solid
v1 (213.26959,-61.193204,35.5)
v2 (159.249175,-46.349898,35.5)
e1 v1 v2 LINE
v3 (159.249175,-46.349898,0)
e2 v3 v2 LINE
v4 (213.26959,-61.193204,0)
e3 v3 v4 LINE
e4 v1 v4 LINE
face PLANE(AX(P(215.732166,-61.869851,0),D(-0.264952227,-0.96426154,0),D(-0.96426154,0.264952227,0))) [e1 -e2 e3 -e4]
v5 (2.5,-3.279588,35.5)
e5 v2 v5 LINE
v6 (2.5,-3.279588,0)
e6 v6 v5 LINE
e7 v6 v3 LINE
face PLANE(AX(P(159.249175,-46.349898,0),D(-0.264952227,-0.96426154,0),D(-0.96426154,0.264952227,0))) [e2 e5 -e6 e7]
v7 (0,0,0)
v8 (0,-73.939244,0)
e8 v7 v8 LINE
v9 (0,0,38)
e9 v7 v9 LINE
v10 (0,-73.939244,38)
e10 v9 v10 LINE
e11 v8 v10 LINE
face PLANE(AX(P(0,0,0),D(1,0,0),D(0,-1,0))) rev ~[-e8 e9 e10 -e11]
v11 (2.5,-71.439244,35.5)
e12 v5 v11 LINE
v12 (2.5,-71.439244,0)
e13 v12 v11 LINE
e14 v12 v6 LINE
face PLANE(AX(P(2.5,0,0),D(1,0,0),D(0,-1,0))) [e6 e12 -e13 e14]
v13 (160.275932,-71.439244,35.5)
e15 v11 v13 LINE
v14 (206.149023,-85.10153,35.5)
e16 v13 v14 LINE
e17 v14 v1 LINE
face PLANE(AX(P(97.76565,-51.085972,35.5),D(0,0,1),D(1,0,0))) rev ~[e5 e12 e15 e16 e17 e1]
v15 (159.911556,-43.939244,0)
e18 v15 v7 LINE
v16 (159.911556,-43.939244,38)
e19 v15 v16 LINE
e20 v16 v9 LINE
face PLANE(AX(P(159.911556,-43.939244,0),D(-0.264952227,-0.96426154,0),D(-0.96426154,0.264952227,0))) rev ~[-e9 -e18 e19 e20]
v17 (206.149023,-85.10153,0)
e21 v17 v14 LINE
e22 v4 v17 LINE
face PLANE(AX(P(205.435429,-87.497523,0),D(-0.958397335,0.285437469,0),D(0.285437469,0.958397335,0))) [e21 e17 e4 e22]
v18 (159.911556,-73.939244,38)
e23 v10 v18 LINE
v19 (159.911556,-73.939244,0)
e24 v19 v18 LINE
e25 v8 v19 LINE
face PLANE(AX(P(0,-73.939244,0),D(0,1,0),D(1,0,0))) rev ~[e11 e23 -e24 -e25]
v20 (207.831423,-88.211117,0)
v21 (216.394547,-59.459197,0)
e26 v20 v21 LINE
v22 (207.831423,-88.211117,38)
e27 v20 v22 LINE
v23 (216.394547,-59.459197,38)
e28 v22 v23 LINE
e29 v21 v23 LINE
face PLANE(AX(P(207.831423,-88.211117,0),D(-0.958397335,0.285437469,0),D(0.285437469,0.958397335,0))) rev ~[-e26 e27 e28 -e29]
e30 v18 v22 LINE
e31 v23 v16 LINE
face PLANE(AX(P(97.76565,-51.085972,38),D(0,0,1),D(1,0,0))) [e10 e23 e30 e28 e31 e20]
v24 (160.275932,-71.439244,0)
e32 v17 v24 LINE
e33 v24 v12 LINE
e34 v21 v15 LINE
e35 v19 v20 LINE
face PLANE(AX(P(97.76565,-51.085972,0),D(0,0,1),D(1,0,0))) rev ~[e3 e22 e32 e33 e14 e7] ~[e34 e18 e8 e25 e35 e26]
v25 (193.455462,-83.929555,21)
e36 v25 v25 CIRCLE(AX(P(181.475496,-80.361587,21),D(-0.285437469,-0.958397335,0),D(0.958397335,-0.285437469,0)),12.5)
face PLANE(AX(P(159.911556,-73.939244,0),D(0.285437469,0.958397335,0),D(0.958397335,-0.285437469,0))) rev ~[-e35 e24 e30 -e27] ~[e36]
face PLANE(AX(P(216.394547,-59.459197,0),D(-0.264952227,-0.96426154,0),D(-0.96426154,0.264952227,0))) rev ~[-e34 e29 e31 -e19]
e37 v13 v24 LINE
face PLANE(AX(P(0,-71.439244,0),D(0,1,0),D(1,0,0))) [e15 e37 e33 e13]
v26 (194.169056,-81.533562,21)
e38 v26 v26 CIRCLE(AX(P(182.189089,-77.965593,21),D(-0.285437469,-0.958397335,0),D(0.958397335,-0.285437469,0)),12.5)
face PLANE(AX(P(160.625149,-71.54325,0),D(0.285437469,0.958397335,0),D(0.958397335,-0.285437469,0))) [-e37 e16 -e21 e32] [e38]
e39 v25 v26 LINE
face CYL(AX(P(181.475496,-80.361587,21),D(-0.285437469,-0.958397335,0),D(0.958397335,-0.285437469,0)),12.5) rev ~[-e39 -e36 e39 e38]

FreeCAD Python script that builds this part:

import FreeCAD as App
import Part
import Sketcher

V = App.Vector
Q = App.Units.Quantity


def faces_at(feature, points):
    """Names of the faces that lie closest to the given points."""
    faces = feature.Shape.Faces
    near = lambda p: min(range(len(faces)), key=lambda i: faces[i].distToShape(Part.Vertex(*p))[0])
    return sorted({f"Face{near(p) + 1}" for p in points})


def add_polygon(sketch, points):
    """Adds a closed chain of lines whose ends are joined by coincident constraints."""
    first, n = sketch.GeometryCount, len(points)
    for a, b in zip(points, points[1:] + points[:1]):
        sketch.addGeometry(Part.LineSegment(App.Vector(*a, 0), App.Vector(*b, 0)), False)
    for i in range(n):
        sketch.addConstraint(Sketcher.Constraint("Coincident", first + i, 2, first + (i + 1) % n, 1))

doc = App.newDocument("Part")
body = doc.addObject("PartDesign::Body", "Body")

# Sketch on XY plane
sketch1 = body.newObject("Sketcher::SketchObject", "Sketch")
sketch1.AttachmentSupport = (doc.getObject("XY_Plane"), [""])
sketch1.MapMode = "FlatFace"
add_polygon(sketch1, [(216.394547, -59.459197), (159.911556, -43.939244), (0, 0), (0, -73.939244), (159.911556, -73.939244), (207.831423, -88.211117)])  # lines 0-5
sketch1.addConstraint([
    Sketcher.Constraint("Vertical", 2),
    Sketcher.Constraint("Horizontal", 3),
    Sketcher.Constraint("Coincident", 1, 2, -1, 1),
    Sketcher.Constraint("Parallel", 0, 1),
    Sketcher.Constraint("Perpendicular", 4, 5),
    Sketcher.Constraint("Vertical", 0, 2, 3, 2),
    Sketcher.Constraint("Distance", 4, Q("50 mm")),
    Sketcher.Constraint("Distance", 5, Q("30 mm")),
    Sketcher.Constraint("DistanceY", 2, 2, 0, 2, Q("30 mm")),
    Sketcher.Constraint("Distance", 0, Q("58.576422 mm")),
    Sketcher.Constraint("DistanceX", 3, 1, 3, 2, Q("159.911556 mm")),
])
pad1 = body.newObject("PartDesign::Pad", "Pad")
pad1.Profile = sketch1
pad1.Length = 38
doc.recompute()

thickness = body.newObject("PartDesign::Thickness", "Thickness")
thickness.Base = (pad1, faces_at(pad1, [(108.197, -44.106, 0)]))
thickness.Value = 2.5
thickness.Reversed = True
thickness.Join = "Intersection"

# Sketch on an angled plane
sketch2 = body.newObject("Sketcher::SketchObject", "Sketch001")
sketch2.Placement = App.Placement(V(-7.198283, -24.169271, 0), App.Rotation(V(0.958397335, -0.285437469, 0), V(0, 0, 1), V(-0.285437469, -0.958397335, 0), "ZXY"))
sketch2.addGeometry(Part.Circle(V(196.86384, 21, 0), V(0, 0, 1), 12.5), False)
sketch2.addConstraint([
    Sketcher.Constraint("Diameter", 0, Q("25 mm")),
    Sketcher.Constraint("DistanceY", -1, 1, 0, 3, Q("21 mm")),
    Sketcher.Constraint("DistanceX", -1, 1, 0, 3, Q("196.86384 mm")),
])
pocket1 = body.newObject("PartDesign::Pocket", "Pocket")
pocket1.Profile = sketch2
pocket1.Length = 5

doc.recompute()
